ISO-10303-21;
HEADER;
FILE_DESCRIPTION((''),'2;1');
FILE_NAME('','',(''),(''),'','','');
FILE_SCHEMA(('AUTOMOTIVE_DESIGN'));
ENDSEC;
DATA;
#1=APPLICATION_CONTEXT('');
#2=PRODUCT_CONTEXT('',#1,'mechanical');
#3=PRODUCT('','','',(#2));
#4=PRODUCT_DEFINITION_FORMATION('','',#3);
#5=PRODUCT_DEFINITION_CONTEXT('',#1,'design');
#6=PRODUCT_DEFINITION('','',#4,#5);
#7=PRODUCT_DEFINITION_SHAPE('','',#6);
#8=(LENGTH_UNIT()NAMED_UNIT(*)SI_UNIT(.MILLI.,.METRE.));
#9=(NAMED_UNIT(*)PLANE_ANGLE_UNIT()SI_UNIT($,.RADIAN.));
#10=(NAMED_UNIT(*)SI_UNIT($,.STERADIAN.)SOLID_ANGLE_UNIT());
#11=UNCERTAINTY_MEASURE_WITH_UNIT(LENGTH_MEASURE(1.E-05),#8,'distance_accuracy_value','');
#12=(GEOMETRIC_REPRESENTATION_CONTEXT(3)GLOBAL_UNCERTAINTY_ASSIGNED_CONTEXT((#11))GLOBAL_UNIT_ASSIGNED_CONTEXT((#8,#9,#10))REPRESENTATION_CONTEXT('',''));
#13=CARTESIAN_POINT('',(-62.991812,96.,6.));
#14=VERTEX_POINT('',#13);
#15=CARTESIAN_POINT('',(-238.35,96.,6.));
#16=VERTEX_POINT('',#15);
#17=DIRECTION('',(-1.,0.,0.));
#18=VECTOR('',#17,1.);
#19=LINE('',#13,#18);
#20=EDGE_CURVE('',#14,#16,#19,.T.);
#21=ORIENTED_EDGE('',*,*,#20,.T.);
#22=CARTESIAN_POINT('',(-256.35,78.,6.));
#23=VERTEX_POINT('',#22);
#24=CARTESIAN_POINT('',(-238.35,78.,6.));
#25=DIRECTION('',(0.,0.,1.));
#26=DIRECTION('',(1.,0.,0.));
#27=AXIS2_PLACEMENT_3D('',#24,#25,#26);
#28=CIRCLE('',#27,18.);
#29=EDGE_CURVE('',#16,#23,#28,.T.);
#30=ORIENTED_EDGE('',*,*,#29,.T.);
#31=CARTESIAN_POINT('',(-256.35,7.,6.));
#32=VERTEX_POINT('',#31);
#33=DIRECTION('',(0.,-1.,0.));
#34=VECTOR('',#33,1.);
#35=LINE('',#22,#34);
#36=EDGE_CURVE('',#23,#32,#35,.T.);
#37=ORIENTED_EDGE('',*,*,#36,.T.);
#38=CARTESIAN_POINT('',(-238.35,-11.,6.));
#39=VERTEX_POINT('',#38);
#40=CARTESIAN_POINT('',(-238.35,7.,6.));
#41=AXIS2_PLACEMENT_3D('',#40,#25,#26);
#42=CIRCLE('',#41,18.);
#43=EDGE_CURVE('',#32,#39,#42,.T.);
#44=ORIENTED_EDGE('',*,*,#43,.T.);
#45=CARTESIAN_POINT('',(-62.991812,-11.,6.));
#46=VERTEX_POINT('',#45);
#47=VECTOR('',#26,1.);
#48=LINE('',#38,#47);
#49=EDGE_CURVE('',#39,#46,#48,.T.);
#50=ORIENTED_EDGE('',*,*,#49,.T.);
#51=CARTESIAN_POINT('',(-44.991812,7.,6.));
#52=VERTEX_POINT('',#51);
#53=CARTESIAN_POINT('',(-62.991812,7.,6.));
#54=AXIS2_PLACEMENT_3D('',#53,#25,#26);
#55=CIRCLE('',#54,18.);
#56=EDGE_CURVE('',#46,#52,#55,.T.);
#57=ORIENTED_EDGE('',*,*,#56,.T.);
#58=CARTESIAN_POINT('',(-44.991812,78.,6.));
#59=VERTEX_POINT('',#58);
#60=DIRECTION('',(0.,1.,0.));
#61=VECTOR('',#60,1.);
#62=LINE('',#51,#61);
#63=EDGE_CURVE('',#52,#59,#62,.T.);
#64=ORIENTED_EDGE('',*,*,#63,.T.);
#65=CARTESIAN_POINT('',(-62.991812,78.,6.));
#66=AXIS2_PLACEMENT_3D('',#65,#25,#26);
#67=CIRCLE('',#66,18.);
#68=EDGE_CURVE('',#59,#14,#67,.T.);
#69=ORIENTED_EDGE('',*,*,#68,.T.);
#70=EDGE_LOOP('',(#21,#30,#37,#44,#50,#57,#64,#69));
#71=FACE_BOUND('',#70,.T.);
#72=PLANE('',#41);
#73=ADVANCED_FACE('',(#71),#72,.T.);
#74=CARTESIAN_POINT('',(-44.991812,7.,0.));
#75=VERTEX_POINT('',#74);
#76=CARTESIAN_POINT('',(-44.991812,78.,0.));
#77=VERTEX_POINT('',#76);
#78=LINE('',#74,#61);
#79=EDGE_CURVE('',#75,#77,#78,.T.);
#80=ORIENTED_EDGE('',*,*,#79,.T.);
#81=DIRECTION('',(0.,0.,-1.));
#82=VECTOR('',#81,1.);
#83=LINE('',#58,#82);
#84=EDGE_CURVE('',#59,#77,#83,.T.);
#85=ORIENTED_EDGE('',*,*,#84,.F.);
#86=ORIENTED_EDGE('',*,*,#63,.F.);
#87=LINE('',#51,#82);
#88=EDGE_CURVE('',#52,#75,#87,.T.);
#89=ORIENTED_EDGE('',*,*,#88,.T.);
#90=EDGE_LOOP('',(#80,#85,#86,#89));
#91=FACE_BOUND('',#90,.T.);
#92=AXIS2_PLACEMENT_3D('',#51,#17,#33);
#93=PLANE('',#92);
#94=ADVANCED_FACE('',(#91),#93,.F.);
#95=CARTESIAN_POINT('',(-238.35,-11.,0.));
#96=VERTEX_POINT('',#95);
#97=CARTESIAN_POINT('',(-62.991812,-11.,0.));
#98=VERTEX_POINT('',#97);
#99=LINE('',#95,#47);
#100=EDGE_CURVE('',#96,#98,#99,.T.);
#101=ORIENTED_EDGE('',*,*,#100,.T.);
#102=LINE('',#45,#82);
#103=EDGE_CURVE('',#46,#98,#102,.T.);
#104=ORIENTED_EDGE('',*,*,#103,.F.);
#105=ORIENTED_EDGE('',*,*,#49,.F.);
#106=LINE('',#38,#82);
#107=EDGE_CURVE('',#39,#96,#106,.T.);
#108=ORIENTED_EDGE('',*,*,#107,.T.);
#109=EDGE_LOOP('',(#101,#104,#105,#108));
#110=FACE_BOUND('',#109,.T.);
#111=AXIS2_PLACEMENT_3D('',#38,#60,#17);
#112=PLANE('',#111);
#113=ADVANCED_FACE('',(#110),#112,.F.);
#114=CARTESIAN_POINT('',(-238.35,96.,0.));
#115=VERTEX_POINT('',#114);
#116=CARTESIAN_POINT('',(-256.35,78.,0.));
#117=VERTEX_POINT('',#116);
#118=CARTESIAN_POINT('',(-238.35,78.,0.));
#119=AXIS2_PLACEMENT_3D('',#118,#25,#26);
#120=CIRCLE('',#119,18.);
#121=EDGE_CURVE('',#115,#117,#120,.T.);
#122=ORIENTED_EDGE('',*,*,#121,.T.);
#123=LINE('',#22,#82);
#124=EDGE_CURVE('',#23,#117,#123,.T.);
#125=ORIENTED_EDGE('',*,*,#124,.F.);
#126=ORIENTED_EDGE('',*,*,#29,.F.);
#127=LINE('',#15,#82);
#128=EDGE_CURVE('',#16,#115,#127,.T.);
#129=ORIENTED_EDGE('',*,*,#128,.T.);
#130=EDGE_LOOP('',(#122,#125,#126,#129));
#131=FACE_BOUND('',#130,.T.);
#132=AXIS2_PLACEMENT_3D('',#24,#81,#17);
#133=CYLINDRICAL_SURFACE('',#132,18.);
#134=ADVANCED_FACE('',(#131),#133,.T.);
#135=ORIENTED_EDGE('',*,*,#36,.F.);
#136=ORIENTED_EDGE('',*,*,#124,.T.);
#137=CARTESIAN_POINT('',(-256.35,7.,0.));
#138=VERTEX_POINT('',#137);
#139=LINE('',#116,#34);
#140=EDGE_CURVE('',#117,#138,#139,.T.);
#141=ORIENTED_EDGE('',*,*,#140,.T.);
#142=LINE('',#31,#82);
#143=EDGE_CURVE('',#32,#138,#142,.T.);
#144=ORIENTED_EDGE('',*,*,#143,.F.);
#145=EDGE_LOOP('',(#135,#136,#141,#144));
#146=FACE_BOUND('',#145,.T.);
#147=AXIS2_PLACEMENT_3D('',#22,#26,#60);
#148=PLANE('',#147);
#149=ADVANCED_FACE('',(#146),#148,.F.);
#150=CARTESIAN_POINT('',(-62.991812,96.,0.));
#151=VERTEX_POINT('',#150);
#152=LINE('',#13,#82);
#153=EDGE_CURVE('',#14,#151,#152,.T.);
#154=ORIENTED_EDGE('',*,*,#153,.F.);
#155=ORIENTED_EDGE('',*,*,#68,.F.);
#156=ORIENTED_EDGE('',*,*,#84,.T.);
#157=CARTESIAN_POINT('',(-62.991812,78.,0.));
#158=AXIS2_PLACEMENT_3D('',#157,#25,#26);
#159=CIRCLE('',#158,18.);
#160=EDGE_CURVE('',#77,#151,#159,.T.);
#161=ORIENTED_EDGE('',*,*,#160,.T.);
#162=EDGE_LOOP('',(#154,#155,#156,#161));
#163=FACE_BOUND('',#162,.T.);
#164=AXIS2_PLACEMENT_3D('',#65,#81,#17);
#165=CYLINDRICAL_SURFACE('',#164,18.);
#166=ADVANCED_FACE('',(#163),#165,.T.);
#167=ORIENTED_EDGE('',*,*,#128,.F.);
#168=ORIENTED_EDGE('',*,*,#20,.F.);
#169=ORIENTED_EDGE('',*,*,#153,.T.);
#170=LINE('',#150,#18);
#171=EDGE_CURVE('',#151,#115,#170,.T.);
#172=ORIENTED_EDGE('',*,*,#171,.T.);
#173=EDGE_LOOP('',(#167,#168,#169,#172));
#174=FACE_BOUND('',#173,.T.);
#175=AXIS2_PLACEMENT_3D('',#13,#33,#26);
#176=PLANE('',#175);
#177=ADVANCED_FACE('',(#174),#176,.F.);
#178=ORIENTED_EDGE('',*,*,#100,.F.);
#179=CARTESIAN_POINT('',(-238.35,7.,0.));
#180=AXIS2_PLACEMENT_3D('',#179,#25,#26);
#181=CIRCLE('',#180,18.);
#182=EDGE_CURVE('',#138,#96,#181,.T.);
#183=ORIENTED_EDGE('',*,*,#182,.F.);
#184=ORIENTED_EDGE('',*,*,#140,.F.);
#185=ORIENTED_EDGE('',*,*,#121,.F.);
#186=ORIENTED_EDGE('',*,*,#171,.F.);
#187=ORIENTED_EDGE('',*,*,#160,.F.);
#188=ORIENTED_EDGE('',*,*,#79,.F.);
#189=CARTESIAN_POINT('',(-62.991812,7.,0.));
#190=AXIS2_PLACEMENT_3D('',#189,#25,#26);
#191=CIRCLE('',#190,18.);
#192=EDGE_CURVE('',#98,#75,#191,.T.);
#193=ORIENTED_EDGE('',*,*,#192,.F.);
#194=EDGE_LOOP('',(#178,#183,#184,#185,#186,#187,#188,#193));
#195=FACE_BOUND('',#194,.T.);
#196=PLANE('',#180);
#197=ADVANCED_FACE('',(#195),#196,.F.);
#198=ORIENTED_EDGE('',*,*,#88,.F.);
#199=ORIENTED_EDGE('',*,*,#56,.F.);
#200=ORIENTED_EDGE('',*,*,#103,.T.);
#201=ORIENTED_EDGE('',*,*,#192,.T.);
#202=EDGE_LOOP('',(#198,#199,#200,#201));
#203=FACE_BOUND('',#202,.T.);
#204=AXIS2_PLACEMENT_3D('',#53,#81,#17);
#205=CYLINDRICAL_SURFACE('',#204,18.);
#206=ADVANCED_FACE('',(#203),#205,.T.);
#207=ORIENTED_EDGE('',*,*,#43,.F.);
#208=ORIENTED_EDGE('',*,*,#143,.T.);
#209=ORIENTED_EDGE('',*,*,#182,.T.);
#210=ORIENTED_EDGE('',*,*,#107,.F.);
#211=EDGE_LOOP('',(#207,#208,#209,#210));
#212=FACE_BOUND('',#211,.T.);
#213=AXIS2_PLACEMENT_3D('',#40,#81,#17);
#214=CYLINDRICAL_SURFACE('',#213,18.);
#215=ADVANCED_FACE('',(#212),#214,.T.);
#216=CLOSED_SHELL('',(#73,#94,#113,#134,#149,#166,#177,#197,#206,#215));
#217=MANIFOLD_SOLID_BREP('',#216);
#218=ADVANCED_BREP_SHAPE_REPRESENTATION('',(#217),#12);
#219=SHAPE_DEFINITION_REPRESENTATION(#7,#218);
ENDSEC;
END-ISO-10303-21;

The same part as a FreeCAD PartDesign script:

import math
import FreeCAD as App
import Part
import Sketcher

doc = App.newDocument("Part")
body = doc.addObject("PartDesign::Body", "Body")

# Sketch on XY plane
sketch1 = body.newObject("Sketcher::SketchObject", "Sketch")
sketch1.AttachmentSupport = (doc.getObject("XY_Plane"), [""])
sketch1.MapMode = "FlatFace"
sketch1.addGeometry(Part.LineSegment(App.Vector(-238.35, -11, 0), App.Vector(-62.991812, -11, 0)), False)
sketch1.addGeometry(Part.ArcOfCircle(Part.Circle(App.Vector(-62.991812, 7, 0), App.Vector(0, 0, 1), 18), math.radians(-90), math.radians(0)), False)
sketch1.addGeometry(Part.LineSegment(App.Vector(-44.991812, 7, 0), App.Vector(-44.991812, 78, 0)), False)
sketch1.addGeometry(Part.ArcOfCircle(Part.Circle(App.Vector(-62.991812, 78, 0), App.Vector(0, 0, 1), 18), math.radians(0), math.radians(90)), False)
sketch1.addGeometry(Part.LineSegment(App.Vector(-62.991812, 96, 0), App.Vector(-238.35, 96, 0)), False)
sketch1.addGeometry(Part.ArcOfCircle(Part.Circle(App.Vector(-238.35, 78, 0), App.Vector(0, 0, 1), 18), math.radians(90), math.radians(180)), False)
sketch1.addGeometry(Part.LineSegment(App.Vector(-256.35, 78, 0), App.Vector(-256.35, 7, 0)), False)
sketch1.addGeometry(Part.ArcOfCircle(Part.Circle(App.Vector(-238.35, 7, 0), App.Vector(0, 0, 1), 18), math.radians(-180), math.radians(-90)), False)
sketch1.addConstraint(Sketcher.Constraint("Tangent", 0, 2, 1, 1))
sketch1.addConstraint(Sketcher.Constraint("Tangent", 1, 2, 2, 1))
sketch1.addConstraint(Sketcher.Constraint("Tangent", 2, 2, 3, 1))
sketch1.addConstraint(Sketcher.Constraint("Tangent", 3, 2, 4, 1))
sketch1.addConstraint(Sketcher.Constraint("Tangent", 4, 2, 5, 1))
sketch1.addConstraint(Sketcher.Constraint("Tangent", 5, 2, 6, 1))
sketch1.addConstraint(Sketcher.Constraint("Tangent", 6, 2, 7, 1))
sketch1.addConstraint(Sketcher.Constraint("Tangent", 7, 2, 0, 1))
sketch1.addConstraint(Sketcher.Constraint("Horizontal", 0))
sketch1.addConstraint(Sketcher.Constraint("Vertical", 2))
sketch1.addConstraint(Sketcher.Constraint("Horizontal", 4))
sketch1.addConstraint(Sketcher.Constraint("Vertical", 6))
sketch1.addConstraint(Sketcher.Constraint("Equal", 1, 3))
sketch1.addConstraint(Sketcher.Constraint("Equal", 3, 5))
sketch1.addConstraint(Sketcher.Constraint("Equal", 5, 7))
sketch1.addConstraint(Sketcher.Constraint("Radius", 1, 18.0))
sketch1.addConstraint(Sketcher.Constraint("DistanceY", 2, 1, 2, 2, 71.0))
sketch1.addConstraint(Sketcher.Constraint("DistanceY", -1, 1, 1, 3, 7.0))
sketch1.addConstraint(Sketcher.Constraint("DistanceX", 5, 3, -1, 1, 238.35))
sketch1.addConstraint(Sketcher.Constraint("DistanceX", 0, 1, 0, 2, 175.358188))
pad1 = body.newObject("PartDesign::Pad", "Pad")
pad1.Profile = sketch1
pad1.Length = 6

doc.recompute()
